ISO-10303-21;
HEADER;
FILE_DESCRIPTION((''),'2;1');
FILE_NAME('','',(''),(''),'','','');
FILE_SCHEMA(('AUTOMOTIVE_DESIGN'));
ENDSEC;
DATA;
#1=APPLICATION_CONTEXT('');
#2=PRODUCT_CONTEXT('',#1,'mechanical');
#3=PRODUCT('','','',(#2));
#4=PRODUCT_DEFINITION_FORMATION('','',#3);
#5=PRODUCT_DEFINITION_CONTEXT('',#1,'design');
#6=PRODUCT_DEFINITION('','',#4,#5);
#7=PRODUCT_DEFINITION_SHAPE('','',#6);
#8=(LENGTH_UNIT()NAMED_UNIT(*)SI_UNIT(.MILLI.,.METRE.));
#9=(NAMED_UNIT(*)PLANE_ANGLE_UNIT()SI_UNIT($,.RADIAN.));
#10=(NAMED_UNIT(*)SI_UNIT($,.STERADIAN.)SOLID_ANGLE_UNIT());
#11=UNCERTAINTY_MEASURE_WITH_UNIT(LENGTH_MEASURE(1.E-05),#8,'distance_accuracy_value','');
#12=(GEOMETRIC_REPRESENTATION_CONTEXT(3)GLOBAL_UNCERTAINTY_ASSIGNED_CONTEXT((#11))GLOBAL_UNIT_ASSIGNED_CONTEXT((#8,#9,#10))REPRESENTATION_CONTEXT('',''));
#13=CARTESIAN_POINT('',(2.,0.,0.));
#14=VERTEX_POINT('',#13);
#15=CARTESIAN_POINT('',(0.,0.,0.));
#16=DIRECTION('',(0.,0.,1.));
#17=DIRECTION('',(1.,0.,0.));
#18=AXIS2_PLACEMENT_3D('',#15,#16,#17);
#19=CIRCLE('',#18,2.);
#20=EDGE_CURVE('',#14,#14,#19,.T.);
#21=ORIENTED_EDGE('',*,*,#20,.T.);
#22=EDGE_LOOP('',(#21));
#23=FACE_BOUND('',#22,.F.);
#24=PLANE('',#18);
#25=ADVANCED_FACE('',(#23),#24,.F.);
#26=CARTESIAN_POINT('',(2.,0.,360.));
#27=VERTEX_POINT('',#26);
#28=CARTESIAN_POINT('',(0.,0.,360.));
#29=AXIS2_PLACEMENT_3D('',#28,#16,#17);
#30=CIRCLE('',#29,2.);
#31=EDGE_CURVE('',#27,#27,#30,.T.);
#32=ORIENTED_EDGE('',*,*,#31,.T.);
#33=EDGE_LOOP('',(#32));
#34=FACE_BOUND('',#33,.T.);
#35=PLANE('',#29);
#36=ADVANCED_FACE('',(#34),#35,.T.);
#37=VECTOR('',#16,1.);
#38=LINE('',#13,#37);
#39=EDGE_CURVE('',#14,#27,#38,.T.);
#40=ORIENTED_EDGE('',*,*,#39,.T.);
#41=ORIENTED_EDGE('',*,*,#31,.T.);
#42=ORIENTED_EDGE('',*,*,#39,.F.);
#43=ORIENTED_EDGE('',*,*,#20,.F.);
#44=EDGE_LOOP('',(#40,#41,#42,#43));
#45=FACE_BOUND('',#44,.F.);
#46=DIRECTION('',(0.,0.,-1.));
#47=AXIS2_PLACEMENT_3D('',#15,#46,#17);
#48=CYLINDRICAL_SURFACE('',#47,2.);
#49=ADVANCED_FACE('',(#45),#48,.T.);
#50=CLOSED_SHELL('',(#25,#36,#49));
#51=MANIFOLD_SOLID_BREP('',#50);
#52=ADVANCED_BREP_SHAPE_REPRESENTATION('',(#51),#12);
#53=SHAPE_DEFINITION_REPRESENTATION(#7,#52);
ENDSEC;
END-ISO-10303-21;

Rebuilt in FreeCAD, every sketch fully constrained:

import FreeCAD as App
import Part
import Sketcher

V = App.Vector

doc = App.newDocument("Part")
body = doc.addObject("PartDesign::Body", "Body")

# Sketch on XY plane
sketch1 = body.newObject("Sketcher::SketchObject", "Sketch")
sketch1.AttachmentSupport = (doc.getObject("XY_Plane"), [""])
sketch1.MapMode = "FlatFace"
sketch1.addGeometry(Part.Circle(V(0, 0, 0), V(0, 0, 1), 2), False)
sketch1.addConstraint(Sketcher.Constraint("Coincident", 0, 3, -1, 1))
sketch1.addConstraint(Sketcher.Constraint("Diameter", 0, 4.0))
pad1 = body.newObject("PartDesign::Pad", "Pad")
pad1.Profile = sketch1
pad1.Length = 360

doc.recompute()
